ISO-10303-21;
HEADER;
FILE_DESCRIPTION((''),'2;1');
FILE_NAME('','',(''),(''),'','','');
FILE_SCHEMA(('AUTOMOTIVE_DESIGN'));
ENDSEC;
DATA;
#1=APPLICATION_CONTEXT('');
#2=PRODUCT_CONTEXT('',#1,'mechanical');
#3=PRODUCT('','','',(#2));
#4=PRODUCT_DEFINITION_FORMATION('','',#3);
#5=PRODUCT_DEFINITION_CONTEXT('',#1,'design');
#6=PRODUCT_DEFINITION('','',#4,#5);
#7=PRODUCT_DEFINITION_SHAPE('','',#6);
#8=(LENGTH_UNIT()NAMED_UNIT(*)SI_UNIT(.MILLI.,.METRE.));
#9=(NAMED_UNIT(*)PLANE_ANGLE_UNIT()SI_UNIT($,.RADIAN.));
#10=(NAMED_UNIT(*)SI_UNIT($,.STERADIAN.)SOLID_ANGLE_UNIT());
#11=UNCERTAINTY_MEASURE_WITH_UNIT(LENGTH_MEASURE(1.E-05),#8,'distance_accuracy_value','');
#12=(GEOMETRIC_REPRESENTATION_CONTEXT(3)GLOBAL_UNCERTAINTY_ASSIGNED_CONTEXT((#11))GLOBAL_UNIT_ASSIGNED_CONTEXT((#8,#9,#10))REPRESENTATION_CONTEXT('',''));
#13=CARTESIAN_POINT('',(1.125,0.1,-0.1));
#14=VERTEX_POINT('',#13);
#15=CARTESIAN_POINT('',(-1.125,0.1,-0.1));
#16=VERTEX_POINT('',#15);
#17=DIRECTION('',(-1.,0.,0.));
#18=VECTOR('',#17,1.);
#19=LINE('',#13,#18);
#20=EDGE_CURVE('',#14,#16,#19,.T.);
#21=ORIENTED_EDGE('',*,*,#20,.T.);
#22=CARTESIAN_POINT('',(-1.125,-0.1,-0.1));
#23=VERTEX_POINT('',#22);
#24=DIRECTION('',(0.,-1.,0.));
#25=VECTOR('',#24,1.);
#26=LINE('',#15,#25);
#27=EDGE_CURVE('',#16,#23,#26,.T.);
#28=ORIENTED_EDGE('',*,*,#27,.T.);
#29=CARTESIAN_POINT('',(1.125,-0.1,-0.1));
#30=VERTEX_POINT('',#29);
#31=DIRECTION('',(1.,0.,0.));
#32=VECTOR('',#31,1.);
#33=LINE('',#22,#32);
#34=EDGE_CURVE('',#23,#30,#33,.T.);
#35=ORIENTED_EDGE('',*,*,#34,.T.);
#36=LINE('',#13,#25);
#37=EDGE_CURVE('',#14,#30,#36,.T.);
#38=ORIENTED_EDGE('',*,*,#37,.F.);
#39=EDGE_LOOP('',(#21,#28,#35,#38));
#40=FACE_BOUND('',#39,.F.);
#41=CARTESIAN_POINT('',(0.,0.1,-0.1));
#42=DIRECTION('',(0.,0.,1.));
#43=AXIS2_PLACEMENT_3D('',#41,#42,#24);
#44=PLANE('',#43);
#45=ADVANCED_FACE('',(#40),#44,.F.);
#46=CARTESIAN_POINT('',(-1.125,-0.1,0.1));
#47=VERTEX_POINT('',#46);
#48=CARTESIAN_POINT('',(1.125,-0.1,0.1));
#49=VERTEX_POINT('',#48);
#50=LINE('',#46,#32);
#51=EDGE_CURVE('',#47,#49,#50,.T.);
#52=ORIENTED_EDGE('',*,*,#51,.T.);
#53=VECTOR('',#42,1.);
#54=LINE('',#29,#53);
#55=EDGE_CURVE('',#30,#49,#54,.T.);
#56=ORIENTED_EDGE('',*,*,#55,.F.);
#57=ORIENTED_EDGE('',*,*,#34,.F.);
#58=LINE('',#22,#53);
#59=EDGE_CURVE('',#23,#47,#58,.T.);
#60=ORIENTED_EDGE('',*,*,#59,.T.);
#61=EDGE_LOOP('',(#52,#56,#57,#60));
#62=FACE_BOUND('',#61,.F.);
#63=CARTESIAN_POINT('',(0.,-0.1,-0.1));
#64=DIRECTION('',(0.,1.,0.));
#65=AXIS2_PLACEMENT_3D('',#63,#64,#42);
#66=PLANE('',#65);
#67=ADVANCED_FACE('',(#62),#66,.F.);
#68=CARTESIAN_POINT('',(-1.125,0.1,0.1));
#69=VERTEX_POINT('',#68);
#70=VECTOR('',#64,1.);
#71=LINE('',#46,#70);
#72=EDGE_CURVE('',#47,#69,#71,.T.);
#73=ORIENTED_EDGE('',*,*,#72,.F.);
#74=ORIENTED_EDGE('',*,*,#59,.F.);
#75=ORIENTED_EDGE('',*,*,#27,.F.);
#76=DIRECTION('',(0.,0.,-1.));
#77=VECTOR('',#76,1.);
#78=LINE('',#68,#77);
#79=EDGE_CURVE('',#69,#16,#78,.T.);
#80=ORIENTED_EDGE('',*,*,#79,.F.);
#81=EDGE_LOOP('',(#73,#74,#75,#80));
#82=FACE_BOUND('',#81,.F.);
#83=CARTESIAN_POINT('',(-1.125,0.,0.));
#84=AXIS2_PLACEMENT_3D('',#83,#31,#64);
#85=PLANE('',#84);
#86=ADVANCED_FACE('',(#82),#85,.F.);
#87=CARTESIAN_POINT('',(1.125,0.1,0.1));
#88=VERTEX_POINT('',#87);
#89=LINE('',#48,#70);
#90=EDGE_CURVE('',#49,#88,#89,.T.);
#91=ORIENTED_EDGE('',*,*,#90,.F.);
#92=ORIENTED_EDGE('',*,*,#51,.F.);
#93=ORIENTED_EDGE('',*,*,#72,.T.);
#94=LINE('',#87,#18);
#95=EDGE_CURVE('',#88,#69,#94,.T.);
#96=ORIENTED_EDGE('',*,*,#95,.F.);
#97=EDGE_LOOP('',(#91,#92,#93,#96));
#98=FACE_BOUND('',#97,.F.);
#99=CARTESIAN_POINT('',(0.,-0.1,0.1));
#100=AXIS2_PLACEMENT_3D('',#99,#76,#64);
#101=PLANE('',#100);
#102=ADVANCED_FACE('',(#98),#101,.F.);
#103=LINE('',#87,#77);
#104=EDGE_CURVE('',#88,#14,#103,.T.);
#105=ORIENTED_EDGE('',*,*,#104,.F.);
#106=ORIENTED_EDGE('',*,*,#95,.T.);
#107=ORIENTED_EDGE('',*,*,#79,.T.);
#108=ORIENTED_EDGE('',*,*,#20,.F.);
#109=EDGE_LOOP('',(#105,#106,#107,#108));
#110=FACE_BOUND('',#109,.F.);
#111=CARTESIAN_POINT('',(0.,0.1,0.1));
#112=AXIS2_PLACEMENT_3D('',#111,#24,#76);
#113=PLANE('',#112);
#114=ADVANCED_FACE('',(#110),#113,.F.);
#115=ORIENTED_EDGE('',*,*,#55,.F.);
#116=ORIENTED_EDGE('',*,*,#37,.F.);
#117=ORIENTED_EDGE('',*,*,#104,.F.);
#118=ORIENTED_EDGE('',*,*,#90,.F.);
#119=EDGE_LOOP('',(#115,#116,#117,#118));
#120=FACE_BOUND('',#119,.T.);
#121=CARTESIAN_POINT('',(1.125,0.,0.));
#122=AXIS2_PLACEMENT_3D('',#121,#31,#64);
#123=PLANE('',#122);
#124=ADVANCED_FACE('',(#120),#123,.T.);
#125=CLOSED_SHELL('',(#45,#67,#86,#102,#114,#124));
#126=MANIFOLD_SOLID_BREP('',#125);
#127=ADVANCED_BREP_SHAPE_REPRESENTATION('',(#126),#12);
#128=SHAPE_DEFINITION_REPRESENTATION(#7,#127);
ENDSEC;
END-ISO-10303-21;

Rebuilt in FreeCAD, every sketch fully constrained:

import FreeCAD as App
import Part
import Sketcher
from FreeCAD import Vector


def add_polygon(sketch, points):
    """Adds a closed chain of lines whose ends are joined by coincident constraints."""
    first, n = sketch.GeometryCount, len(points)
    for a, b in zip(points, points[1:] + points[:1]):
        sketch.addGeometry(Part.LineSegment(App.Vector(*a, 0), App.Vector(*b, 0)), False)
    for i in range(n):
        sketch.addConstraint(Sketcher.Constraint("Coincident", first + i, 2, first + (i + 1) % n, 1))

doc = App.newDocument("Part")
body = doc.addObject("PartDesign::Body", "Body")

sketch1 = body.newObject("Sketcher::SketchObject", "Sketch")
sketch1.AttachmentSupport = (doc.getObject("YZ_Plane"), [""])
sketch1.MapMode = "FlatFace"
add_polygon(sketch1, [(0.1, 0.1), (-0.1, 0.1), (-0.1, -0.1), (0.1, -0.1)])
sketch1.addConstraint([
    Sketcher.Constraint("Horizontal", 0),
    Sketcher.Constraint("Vertical", 1),
    Sketcher.Constraint("Horizontal", 2),
    Sketcher.Constraint("Vertical", 3),
    Sketcher.Constraint("Symmetric", 0, 2, 2, 2, -1, 1),
    Sketcher.Constraint("Equal", 2, 1),
    Sketcher.Constraint("DistanceX", 0, 2, 0, 1, 0.2),
])
pad1 = body.newObject("PartDesign::Pad", "Pad")
pad1.Profile = sketch1
pad1.Length = 2.25
pad1.Midplane = True

doc.recompute()
